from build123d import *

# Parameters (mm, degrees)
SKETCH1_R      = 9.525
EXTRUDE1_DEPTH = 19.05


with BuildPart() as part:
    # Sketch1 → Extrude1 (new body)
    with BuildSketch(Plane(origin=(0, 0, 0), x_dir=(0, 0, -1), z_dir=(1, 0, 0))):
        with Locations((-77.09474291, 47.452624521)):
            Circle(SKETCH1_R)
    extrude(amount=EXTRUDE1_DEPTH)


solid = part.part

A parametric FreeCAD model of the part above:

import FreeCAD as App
import Part
import Sketcher
from FreeCAD import Vector
Q = App.Units.Quantity

doc = App.newDocument("Part")
body = doc.addObject("PartDesign::Body", "Body")

sketch1 = doc.addObject("Sketcher::SketchObject", "Sketch")
body.addObject(sketch1)
sketch1.AttachmentSupport = (doc.YZ_Plane, [""])
sketch1.MapMode = "FlatFace"
sketch1.addGeometry(Part.Circle(Vector(47.452625, 77.094743, 0), Vector(0, 0, 1), 9.525), False)
sketch1.addConstraint([
    Sketcher.Constraint("Diameter", 0, Q("0.75 in")),
    Sketcher.Constraint("DistanceX", -1, 1, 0, 3, Q("47.452625 mm")),
    Sketcher.Constraint("DistanceY", -1, 1, 0, 3, Q("77.094743 mm")),
])
pad1 = doc.addObject("PartDesign::Pad", "Pad")
body.addObject(pad1)
pad1.Profile = sketch1
pad1.Length = Q("0.75 in")

doc.recompute()
